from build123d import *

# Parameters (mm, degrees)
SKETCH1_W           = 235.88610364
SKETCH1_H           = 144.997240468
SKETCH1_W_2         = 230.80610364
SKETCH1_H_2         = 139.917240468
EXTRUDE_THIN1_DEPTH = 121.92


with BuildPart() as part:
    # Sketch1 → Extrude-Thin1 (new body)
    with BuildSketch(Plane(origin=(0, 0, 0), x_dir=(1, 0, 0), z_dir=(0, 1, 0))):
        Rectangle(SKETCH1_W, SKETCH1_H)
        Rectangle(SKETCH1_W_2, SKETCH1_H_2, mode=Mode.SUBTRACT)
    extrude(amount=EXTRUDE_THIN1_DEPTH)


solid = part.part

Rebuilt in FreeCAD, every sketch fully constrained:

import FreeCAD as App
import Part
import Sketcher
from FreeCAD import Vector
Q = App.Units.Quantity


def add_polygon(sketch, points):
    """Adds a closed chain of lines whose ends are joined by coincident constraints."""
    first, n = sketch.GeometryCount, len(points)
    for a, b in zip(points, points[1:] + points[:1]):
        sketch.addGeometry(Part.LineSegment(App.Vector(*a, 0), App.Vector(*b, 0)), False)
    for i in range(n):
        sketch.addConstraint(Sketcher.Constraint("Coincident", first + i, 2, first + (i + 1) % n, 1))

doc = App.newDocument("Part")
body = doc.addObject("PartDesign::Body", "Body")

# Sketch on XZ plane
sketch1 = body.newObject("Sketcher::SketchObject", "Sketch")
sketch1.AttachmentSupport = (doc.getObject("XZ_Plane"), [""])
sketch1.MapMode = "FlatFace"
add_polygon(sketch1, [(-117.943052, -72.49862), (-117.943052, 72.49862), (117.943052, 72.49862), (117.943052, -72.49862)])  # lines 0-3
add_polygon(sketch1, [(115.403052, 69.95862), (-115.403052, 69.95862), (-115.403052, -69.95862), (115.403052, -69.95862)])  # lines 4-7
sketch1.addConstraint([
    Sketcher.Constraint("Vertical", 0),
    Sketcher.Constraint("Horizontal", 1),
    Sketcher.Constraint("Vertical", 2),
    Sketcher.Constraint("Horizontal", 3),
    Sketcher.Constraint("Horizontal", 4),
    Sketcher.Constraint("Vertical", 5),
    Sketcher.Constraint("Horizontal", 6),
    Sketcher.Constraint("Vertical", 7),
    Sketcher.Constraint("Symmetric", 0, 2, 2, 2, -1, 1),
    Sketcher.Constraint("Symmetric", 4, 2, 6, 2, -1, 1),
    Sketcher.Constraint("DistanceX", 0, 2, 4, 2, Q("0.1 in")),
    Sketcher.Constraint("DistanceY", 4, 2, 0, 2, Q("0.1 in")),
    Sketcher.Constraint("DistanceY", 0, 1, 0, 2, 144.99724),
    Sketcher.Constraint("DistanceX", 1, 1, 1, 2, 235.886104),
])
pad1 = body.newObject("PartDesign::Pad", "Pad")
pad1.Profile = sketch1
pad1.Length = Q("4.8 in")
pad1.Reversed = True

doc.recompute()
